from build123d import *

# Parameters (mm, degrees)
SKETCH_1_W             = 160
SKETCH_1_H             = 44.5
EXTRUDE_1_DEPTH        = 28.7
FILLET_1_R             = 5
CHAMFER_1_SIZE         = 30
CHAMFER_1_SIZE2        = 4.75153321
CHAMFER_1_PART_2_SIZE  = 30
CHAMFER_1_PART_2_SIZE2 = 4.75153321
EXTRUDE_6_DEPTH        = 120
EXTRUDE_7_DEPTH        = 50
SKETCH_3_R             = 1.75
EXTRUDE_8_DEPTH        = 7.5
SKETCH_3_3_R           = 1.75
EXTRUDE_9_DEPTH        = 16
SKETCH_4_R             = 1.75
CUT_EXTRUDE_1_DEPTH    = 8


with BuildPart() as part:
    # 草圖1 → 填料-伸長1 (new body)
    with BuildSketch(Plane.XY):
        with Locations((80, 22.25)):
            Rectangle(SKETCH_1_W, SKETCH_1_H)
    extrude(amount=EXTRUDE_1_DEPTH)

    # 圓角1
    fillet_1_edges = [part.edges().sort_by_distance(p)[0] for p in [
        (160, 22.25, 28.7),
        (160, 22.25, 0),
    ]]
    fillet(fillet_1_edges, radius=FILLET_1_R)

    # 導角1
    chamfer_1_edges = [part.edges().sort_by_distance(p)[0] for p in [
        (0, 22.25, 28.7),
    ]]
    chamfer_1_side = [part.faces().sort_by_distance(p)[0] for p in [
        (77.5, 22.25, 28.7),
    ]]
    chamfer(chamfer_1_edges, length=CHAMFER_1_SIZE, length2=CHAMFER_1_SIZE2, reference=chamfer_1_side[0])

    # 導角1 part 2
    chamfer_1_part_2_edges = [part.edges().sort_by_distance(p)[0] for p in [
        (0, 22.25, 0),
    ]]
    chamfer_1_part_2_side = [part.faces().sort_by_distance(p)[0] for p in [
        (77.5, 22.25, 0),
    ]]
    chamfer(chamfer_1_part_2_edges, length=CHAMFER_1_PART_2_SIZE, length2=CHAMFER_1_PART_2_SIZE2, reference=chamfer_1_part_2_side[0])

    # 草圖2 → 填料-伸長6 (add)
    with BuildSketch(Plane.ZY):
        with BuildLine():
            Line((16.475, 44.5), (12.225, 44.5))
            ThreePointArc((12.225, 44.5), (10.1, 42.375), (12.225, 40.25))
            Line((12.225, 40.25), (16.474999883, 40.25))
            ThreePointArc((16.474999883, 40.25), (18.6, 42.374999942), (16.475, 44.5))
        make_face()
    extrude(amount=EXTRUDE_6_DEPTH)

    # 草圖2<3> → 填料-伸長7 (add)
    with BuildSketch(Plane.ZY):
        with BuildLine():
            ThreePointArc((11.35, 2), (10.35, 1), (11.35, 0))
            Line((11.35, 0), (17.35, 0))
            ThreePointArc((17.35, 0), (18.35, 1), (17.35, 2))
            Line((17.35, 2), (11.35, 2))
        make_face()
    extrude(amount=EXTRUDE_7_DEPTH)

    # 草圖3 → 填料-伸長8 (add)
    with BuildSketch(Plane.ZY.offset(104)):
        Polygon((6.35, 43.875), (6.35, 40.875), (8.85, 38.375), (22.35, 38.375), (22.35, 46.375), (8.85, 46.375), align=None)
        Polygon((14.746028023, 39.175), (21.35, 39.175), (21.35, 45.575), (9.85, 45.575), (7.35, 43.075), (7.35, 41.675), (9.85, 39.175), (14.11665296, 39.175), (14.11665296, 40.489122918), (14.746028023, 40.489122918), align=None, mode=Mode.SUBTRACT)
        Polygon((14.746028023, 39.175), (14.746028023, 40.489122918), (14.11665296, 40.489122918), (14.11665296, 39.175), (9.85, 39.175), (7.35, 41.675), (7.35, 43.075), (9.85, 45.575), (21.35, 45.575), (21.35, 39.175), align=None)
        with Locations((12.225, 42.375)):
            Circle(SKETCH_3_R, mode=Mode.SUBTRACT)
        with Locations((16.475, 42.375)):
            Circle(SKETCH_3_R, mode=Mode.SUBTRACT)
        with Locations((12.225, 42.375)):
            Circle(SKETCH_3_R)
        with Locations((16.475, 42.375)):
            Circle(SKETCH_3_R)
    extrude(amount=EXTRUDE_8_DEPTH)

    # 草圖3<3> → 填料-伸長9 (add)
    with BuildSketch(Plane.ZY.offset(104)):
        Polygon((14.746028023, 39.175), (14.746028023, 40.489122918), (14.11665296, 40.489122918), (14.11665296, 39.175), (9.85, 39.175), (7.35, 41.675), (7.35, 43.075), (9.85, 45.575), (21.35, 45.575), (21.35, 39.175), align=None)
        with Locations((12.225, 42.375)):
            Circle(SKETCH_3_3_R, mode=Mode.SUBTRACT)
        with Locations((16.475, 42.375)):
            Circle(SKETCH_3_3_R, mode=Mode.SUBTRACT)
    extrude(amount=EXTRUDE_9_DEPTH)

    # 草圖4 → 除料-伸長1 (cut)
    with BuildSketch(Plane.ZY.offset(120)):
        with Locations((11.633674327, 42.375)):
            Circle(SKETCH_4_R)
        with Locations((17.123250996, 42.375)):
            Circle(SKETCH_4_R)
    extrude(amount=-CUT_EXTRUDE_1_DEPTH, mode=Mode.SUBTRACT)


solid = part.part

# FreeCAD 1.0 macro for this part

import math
import FreeCAD as App
import Part
import Sketcher
from FreeCAD import Vector
Q = App.Units.Quantity


def edges_at(feature, points):
    """Names of the edges that pass closest to the given points."""
    edges = feature.Shape.Edges
    near = lambda p: min(range(len(edges)), key=lambda i: edges[i].distToShape(Part.Vertex(*p))[0])
    return sorted({f"Edge{near(p) + 1}" for p in points})


def add_polygon(sketch, points):
    """Adds a closed chain of lines whose ends are joined by coincident constraints."""
    first, n = sketch.GeometryCount, len(points)
    for a, b in zip(points, points[1:] + points[:1]):
        sketch.addGeometry(Part.LineSegment(App.Vector(*a, 0), App.Vector(*b, 0)), False)
    for i in range(n):
        sketch.addConstraint(Sketcher.Constraint("Coincident", first + i, 2, first + (i + 1) % n, 1))

doc = App.newDocument("Part")
params = doc.addObject("Spreadsheet::Sheet", "Params")
for row, (alias, value) in enumerate([
    ("sketch1_width", "160 mm"),
    ("sketch1_height", "44.5 mm"),
    ("pad1_length", "28.7 mm"),
    ("fillet_radius", "5 mm"),
    ("chamfer_size", "30 mm"),
    ("chamfer_size2", "4.751533 mm"),
    ("chamfer2_size", "30 mm"),
    ("chamfer2_size2", "4.751533 mm"),
    ("sketch2_height", "4.25 mm"),
    ("pad2_length", "120 mm"),
    ("sketch3_radius", "1 mm"),
    ("sketch3_height", "6 mm"),
    ("pad3_length", "50 mm"),
    ("sketch4_width", "3 mm"),
    ("sketch4_width2", "8 mm"),
    ("sketch4_height", "13.5 mm"),
    ("pad4_length", "7.5 mm"),
    ("sketch5_diameter", "3.5 mm"),
    ("sketch5_width", "6.4 mm"),
    ("sketch5_width2", "1.4 mm"),
    ("sketch5_height", "11.5 mm"),
    ("pad5_length", "16 mm"),
    ("sketch6_diameter", "3.5 mm"),
    ("pocket1_length", "8 mm"),
], start=1):
    params.set(f"A{row}", alias)
    params.set(f"B{row}", "=" + value)
    params.setAlias(f"B{row}", alias)

body = doc.addObject("PartDesign::Body", "Body")

# Sketch on XY plane
sketch1 = doc.addObject("Sketcher::SketchObject", "Sketch")
body.addObject(sketch1)
sketch1.AttachmentSupport = (doc.XY_Plane, [""])
sketch1.MapMode = "FlatFace"
add_polygon(sketch1, [(0, 44.5), (0, 0), (160, 0), (160, 44.5)])  # lines 0-3
sketch1.addConstraint([
    Sketcher.Constraint("Vertical", 0),
    Sketcher.Constraint("Horizontal", 1),
    Sketcher.Constraint("Vertical", 2),
    Sketcher.Constraint("Horizontal", 3),
    Sketcher.Constraint("Coincident", 0, 2, -1, 1),
    Sketcher.Constraint("DistanceX", 1, 1, 1, 2, Q("160 mm")),
    Sketcher.Constraint("DistanceY", 0, 2, 0, 1, Q("44.5 mm")),
])
sketch1.setExpression("Constraints[9]", "Params.sketch1_width")
sketch1.setExpression("Constraints[10]", "Params.sketch1_height")
pad1 = doc.addObject("PartDesign::Pad", "Pad")
body.addObject(pad1)
pad1.Profile = sketch1
pad1.setExpression("Length", "Params.pad1_length")
doc.recompute()

fillet = doc.addObject("PartDesign::Fillet", "Fillet")
body.addObject(fillet)
fillet.Base = (pad1, edges_at(pad1, [(160, 22.25, 28.7), (160, 22.25, 0)]))
fillet.setExpression("Radius", "Params.fillet_radius")
doc.recompute()

chamfer = doc.addObject("PartDesign::Chamfer", "Chamfer")
body.addObject(chamfer)
chamfer.Base = (fillet, edges_at(fillet, [(0, 22.25, 28.7)]))
chamfer.ChamferType = "Two distances"
chamfer.setExpression("Size", "Params.chamfer_size")
chamfer.setExpression("Size2", "Params.chamfer_size2")
doc.recompute()

chamfer2 = doc.addObject("PartDesign::Chamfer", "Chamfer001")
body.addObject(chamfer2)
chamfer2.Base = (chamfer, edges_at(chamfer, [(0, 22.25, 0)]))
chamfer2.ChamferType = "Two distances"
chamfer2.setExpression("Size", "Params.chamfer2_size")
chamfer2.setExpression("Size2", "Params.chamfer2_size2")
chamfer2.FlipDirection = True

# Sketch on YZ plane
sketch2 = doc.addObject("Sketcher::SketchObject", "Sketch001")
body.addObject(sketch2)
sketch2.AttachmentSupport = (doc.YZ_Plane, [""])
sketch2.MapMode = "FlatFace"
sketch2.addGeometry([
    Part.LineSegment(Vector(44.5, 16.475, 0), Vector(44.5, 12.225, 0)),
    Part.ArcOfCircle(Part.Circle(Vector(42.375, 12.225, 0), Vector(0, 0, 1), 2.125), math.radians(180), math.radians(360)),
    Part.LineSegment(Vector(40.25, 12.225, 0), Vector(40.25, 16.475, 0)),
    Part.ArcOfCircle(Part.Circle(Vector(42.375, 16.475, 0), Vector(0, 0, 1), 2.125), math.radians(0), math.radians(180.000003)),
], False)
sketch2.addConstraint([
    Sketcher.Constraint("Tangent", 0, 2, 1, 2),
    Sketcher.Constraint("Tangent", 1, 1, 2, 1),
    Sketcher.Constraint("Tangent", 2, 2, 3, 2),
    Sketcher.Constraint("Tangent", 3, 1, 0, 1),
    Sketcher.Constraint("Vertical", 0),
    Sketcher.Constraint("Vertical", 2),
    Sketcher.Constraint("Radius", 1, Q("2.125 mm")),
    Sketcher.Constraint("DistanceY", 0, 2, 0, 1, Q("4.25 mm")),
    Sketcher.Constraint("DistanceX", -1, 1, 0, 2, Q("44.5 mm")),
    Sketcher.Constraint("DistanceY", -1, 1, 1, 3, Q("12.225 mm")),
])
sketch2.setExpression("Constraints[7]", "Params.sketch2_height")
pad2 = doc.addObject("PartDesign::Pad", "Pad001")
body.addObject(pad2)
pad2.Profile = sketch2
pad2.setExpression("Length", "Params.pad2_length")
pad2.Reversed = True

# Sketch on YZ plane
sketch3 = doc.addObject("Sketcher::SketchObject", "Sketch002")
body.addObject(sketch3)
sketch3.AttachmentSupport = (doc.YZ_Plane, [""])
sketch3.MapMode = "FlatFace"
sketch3.addGeometry([
    Part.ArcOfCircle(Part.Circle(Vector(1, 11.35, 0), Vector(0, 0, 1), 1), math.radians(180), math.radians(360)),
    Part.LineSegment(Vector(0, 11.35, 0), Vector(0, 17.35, 0)),
    Part.ArcOfCircle(Part.Circle(Vector(1, 17.35, 0), Vector(0, 0, 1), 1), math.radians(0), math.radians(180)),
    Part.LineSegment(Vector(2, 17.35, 0), Vector(2, 11.35, 0)),
], False)
sketch3.addConstraint([
    Sketcher.Constraint("Tangent", 0, 1, 1, 1),
    Sketcher.Constraint("Tangent", 1, 2, 2, 2),
    Sketcher.Constraint("Tangent", 2, 1, 3, 1),
    Sketcher.Constraint("Tangent", 3, 2, 0, 2),
    Sketcher.Constraint("Vertical", 1),
    Sketcher.Constraint("Vertical", 3),
    Sketcher.Constraint("PointOnObject", 0, 1, -2),
    Sketcher.Constraint("Radius", 0, Q("1 mm")),
    Sketcher.Constraint("DistanceY", 1, 1, 1, 2, Q("6 mm")),
    Sketcher.Constraint("DistanceY", -1, 1, 0, 3, Q("11.35 mm")),
])
sketch3.setExpression("Constraints[7]", "Params.sketch3_radius")
sketch3.setExpression("Constraints[8]", "Params.sketch3_height")
pad3 = doc.addObject("PartDesign::Pad", "Pad002")
body.addObject(pad3)
pad3.Profile = sketch3
pad3.setExpression("Length", "Params.pad3_length")
pad3.Reversed = True

# Sketch on YZ plane
sketch4 = doc.addObject("Sketcher::SketchObject", "Sketch003")
body.addObject(sketch4)
sketch4.AttachmentSupport = (doc.YZ_Plane, [""])
sketch4.MapMode = "FlatFace"
sketch4.AttachmentOffset = App.Placement(Vector(0, 0, -104), App.Rotation())
add_polygon(sketch4, [(43.875, 6.35), (40.875, 6.35), (38.375, 8.85), (38.375, 22.35), (46.375, 22.35), (46.375, 8.85)])  # lines 0-5
sketch4.addConstraint([
    Sketcher.Constraint("Horizontal", 0),
    Sketcher.Constraint("Vertical", 2),
    Sketcher.Constraint("Horizontal", 3),
    Sketcher.Constraint("Vertical", 4),
    Sketcher.Constraint("Perpendicular", 1, 5),
    Sketcher.Constraint("Horizontal", 1, 2, 4, 2),
    Sketcher.Constraint("Equal", 1, 5),
    Sketcher.Constraint("DistanceX", 0, 2, 0, 1, Q("3 mm")),
    Sketcher.Constraint("DistanceX", 3, 1, 3, 2, Q("8 mm")),
    Sketcher.Constraint("DistanceY", 2, 1, 2, 2, Q("13.5 mm")),
    Sketcher.Constraint("DistanceY", -1, 1, 0, 2, Q("6.35 mm")),
    Sketcher.Constraint("DistanceX", -1, 1, 0, 2, Q("40.875 mm")),
])
sketch4.setExpression("Constraints[13]", "Params.sketch4_width")
sketch4.setExpression("Constraints[14]", "Params.sketch4_width2")
sketch4.setExpression("Constraints[15]", "Params.sketch4_height")
pad4 = doc.addObject("PartDesign::Pad", "Pad003")
body.addObject(pad4)
pad4.Profile = sketch4
pad4.setExpression("Length", "Params.pad4_length")
pad4.Reversed = True

# Sketch on YZ plane
sketch5 = doc.addObject("Sketcher::SketchObject", "Sketch004")
body.addObject(sketch5)
sketch5.AttachmentSupport = (doc.YZ_Plane, [""])
sketch5.MapMode = "FlatFace"
sketch5.AttachmentOffset = App.Placement(Vector(0, 0, -104), App.Rotation())
add_polygon(sketch5, [(40.489123, 14.746028), (39.175, 14.746028), (39.175, 21.35), (45.575, 21.35), (45.575, 9.85), (43.075, 7.35), (41.675, 7.35), (39.175, 9.85), (39.175, 14.116653), (40.489123, 14.116653)])  # lines 0-9
sketch5.addGeometry(Part.Circle(Vector(42.375, 16.475, 0), Vector(0, 0, 1), 1.75), False)  # 10
sketch5.addGeometry(Part.Circle(Vector(42.375, 12.225, 0), Vector(0, 0, 1), 1.75), False)  # 11
sketch5.addConstraint([
    Sketcher.Constraint("Horizontal", 0),
    Sketcher.Constraint("Vertical", 1),
    Sketcher.Constraint("Horizontal", 2),
    Sketcher.Constraint("Vertical", 3),
    Sketcher.Constraint("Horizontal", 5),
    Sketcher.Constraint("Vertical", 7),
    Sketcher.Constraint("Horizontal", 8),
    Sketcher.Constraint("Vertical", 9),
    Sketcher.Constraint("Equal", 10, 11),
    Sketcher.Constraint("Perpendicular", 4, 6),
    Sketcher.Constraint("Horizontal", 3, 2, 6, 2),
    Sketcher.Constraint("Vertical", 10, 3, 11, 3),
    Sketcher.Constraint("Vertical", 1, 2, 6, 2),
    Sketcher.Constraint("Equal", 4, 6),
    Sketcher.Constraint("Diameter", 10, Q("3.5 mm")),
    Sketcher.Constraint("DistanceX", 2, 1, 2, 2, Q("6.4 mm")),
    Sketcher.Constraint("DistanceX", 5, 2, 5, 1, Q("1.4 mm")),
    Sketcher.Constraint("DistanceY", 3, 2, 3, 1, Q("11.5 mm")),
    Sketcher.Constraint("DistanceX", 0, 2, 10, 3, Q("3.2 mm")),
    Sketcher.Constraint("DistanceY", -1, 1, 1, 2, Q("21.35 mm")),
    Sketcher.Constraint("DistanceY", 11, 3, 10, 3, Q("4.25 mm")),
    Sketcher.Constraint("DistanceX", -1, 1, 10, 3, Q("42.375 mm")),
    Sketcher.Constraint("DistanceY", -1, 1, 10, 3, Q("16.475 mm")),
    Sketcher.Constraint("DistanceY", 1, 1, 1, 2, Q("6.603972 mm")),
    Sketcher.Constraint("DistanceX", 0, 2, 0, 1, Q("1.314123 mm")),
    Sketcher.Constraint("DistanceY", 7, 1, 7, 2, Q("4.266653 mm")),
])
sketch5.setExpression("Constraints[24]", "Params.sketch5_diameter")
sketch5.setExpression("Constraints[25]", "Params.sketch5_width")
sketch5.setExpression("Constraints[26]", "Params.sketch5_width2")
sketch5.setExpression("Constraints[27]", "Params.sketch5_height")
pad5 = doc.addObject("PartDesign::Pad", "Pad004")
body.addObject(pad5)
pad5.Profile = sketch5
pad5.setExpression("Length", "Params.pad5_length")
pad5.Reversed = True

# Sketch on YZ plane
sketch6 = doc.addObject("Sketcher::SketchObject", "Sketch005")
body.addObject(sketch6)
sketch6.AttachmentSupport = (doc.YZ_Plane, [""])
sketch6.MapMode = "FlatFace"
sketch6.AttachmentOffset = App.Placement(Vector(0, 0, -120), App.Rotation())
sketch6.addGeometry([
    Part.Circle(Vector(42.375, 11.633674, 0), Vector(0, 0, 1), 1.75),
    Part.Circle(Vector(42.375, 17.123251, 0), Vector(0, 0, 1), 1.75),
], False)
sketch6.addConstraint([
    Sketcher.Constraint("Equal", 0, 1),
    Sketcher.Constraint("Vertical", 0, 3, 1, 3),
    Sketcher.Constraint("Diameter", 0, Q("3.5 mm")),
    Sketcher.Constraint("DistanceX", -1, 1, 0, 3, Q("42.375 mm")),
    Sketcher.Constraint("DistanceY", -1, 1, 1, 3, Q("17.123251 mm")),
    Sketcher.Constraint("DistanceY", -1, 1, 0, 3, Q("11.633674 mm")),
])
sketch6.setExpression("Constraints[2]", "Params.sketch6_diameter")
pocket1 = doc.addObject("PartDesign::Pocket", "Pocket")
body.addObject(pocket1)
pocket1.Profile = sketch6
pocket1.setExpression("Length", "Params.pocket1_length")
pocket1.Reversed = True

doc.recompute()
